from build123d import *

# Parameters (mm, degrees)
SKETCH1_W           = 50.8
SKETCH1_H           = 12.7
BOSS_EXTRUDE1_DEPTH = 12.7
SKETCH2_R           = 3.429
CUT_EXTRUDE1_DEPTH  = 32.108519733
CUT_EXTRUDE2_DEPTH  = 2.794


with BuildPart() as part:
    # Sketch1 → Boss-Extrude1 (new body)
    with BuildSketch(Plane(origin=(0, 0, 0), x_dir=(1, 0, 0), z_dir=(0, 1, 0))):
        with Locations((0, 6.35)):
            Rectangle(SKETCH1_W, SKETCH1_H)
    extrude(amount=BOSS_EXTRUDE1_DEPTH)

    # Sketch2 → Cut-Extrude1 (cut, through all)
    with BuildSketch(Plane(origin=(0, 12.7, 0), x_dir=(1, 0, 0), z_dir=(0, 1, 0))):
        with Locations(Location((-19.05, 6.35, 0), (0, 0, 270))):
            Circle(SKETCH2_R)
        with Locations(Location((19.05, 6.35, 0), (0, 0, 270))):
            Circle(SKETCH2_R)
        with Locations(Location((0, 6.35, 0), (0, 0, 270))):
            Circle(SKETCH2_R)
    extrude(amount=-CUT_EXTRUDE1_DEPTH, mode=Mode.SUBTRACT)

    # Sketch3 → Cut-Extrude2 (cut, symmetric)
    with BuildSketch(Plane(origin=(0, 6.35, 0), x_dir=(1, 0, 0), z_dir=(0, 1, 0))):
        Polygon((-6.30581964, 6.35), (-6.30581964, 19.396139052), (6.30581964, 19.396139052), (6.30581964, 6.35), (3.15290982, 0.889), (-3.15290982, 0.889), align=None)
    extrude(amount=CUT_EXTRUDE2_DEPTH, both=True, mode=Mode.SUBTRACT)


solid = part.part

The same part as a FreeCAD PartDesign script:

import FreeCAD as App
import Part
import Sketcher

V = App.Vector
Q = App.Units.Quantity

doc = App.newDocument("Part")
params = doc.addObject("Spreadsheet::Sheet", "Params")
for row, (alias, value) in enumerate([
    ("sketch1_width", "2 in"),
    ("sketch1_height", "0.5 in"),
    ("pad1_length", "0.5 in"),
    ("sketch2_diameter", "0.27 in"),
    ("pocket2_length", "0.22 in"),
], start=1):
    params.set(f"A{row}", alias)
    params.set(f"B{row}", "=" + value)
    params.setAlias(f"B{row}", alias)

body = doc.addObject("PartDesign::Body", "Body")

# Sketch on XZ plane
sketch1 = body.newObject("Sketcher::SketchObject", "Sketch")
sketch1.AttachmentSupport = (doc.getObject("XZ_Plane"), [""])
sketch1.MapMode = "FlatFace"
sketch1.addGeometry([
    Part.LineSegment(V(-25.4, -12.7, 0), V(-25.4, 0, 0)),
    Part.LineSegment(V(-25.4, 0, 0), V(25.4, 0, 0)),
    Part.LineSegment(V(25.4, 0, 0), V(25.4, -12.7, 0)),
    Part.LineSegment(V(25.4, -12.7, 0), V(-25.4, -12.7, 0)),
], False)
sketch1.addConstraint([
    Sketcher.Constraint("Coincident", 0, 2, 1, 1),
    Sketcher.Constraint("Coincident", 1, 2, 2, 1),
    Sketcher.Constraint("Coincident", 2, 2, 3, 1),
    Sketcher.Constraint("Coincident", 3, 2, 0, 1),
    Sketcher.Constraint("Vertical", 0),
    Sketcher.Constraint("Horizontal", 1),
    Sketcher.Constraint("Vertical", 2),
    Sketcher.Constraint("Horizontal", 3),
    Sketcher.Constraint("Symmetric", 0, 2, 1, 2, -1, 1),
    Sketcher.Constraint("DistanceX", 1, 1, 1, 2, Q("2 in")),
    Sketcher.Constraint("DistanceY", 0, 1, 0, 2, Q("0.5 in")),
])
sketch1.setExpression("Constraints[9]", "Params.sketch1_width")
sketch1.setExpression("Constraints[10]", "Params.sketch1_height")
pad1 = body.newObject("PartDesign::Pad", "Pad")
pad1.Profile = sketch1
pad1.setExpression("Length", "Params.pad1_length")
pad1.Reversed = True

# Sketch on XZ plane
sketch2 = body.newObject("Sketcher::SketchObject", "Sketch001")
sketch2.AttachmentSupport = (doc.getObject("XZ_Plane"), [""])
sketch2.MapMode = "FlatFace"
sketch2.AttachmentOffset = App.Placement(V(0, 0, -0.5 * 25.4), App.Rotation())
sketch2.addGeometry([
    Part.Circle(V(-19.05, -6.35, 0), V(0, 0, 1), 3.429),
    Part.Circle(V(19.05, -6.35, 0), V(0, 0, 1), 3.429),
    Part.Circle(V(0, -6.35, 0), V(0, 0, 1), 3.429),
], False)
sketch2.addConstraint([
    Sketcher.Constraint("Equal", 0, 1),
    Sketcher.Constraint("Equal", 1, 2),
    Sketcher.Constraint("Symmetric", 0, 3, 1, 3, -2),
    Sketcher.Constraint("PointOnObject", 2, 3, -2),
    Sketcher.Constraint("Horizontal", 1, 3, 2, 3),
    Sketcher.Constraint("Diameter", 0, Q("0.27 in")),
    Sketcher.Constraint("DistanceX", 0, 3, 1, 3, Q("1.5 in")),
    Sketcher.Constraint("DistanceY", 0, 3, -1, 1, Q("0.25 in")),
])
sketch2.setExpression("Constraints[5]", "Params.sketch2_diameter")
pocket1 = body.newObject("PartDesign::Pocket", "Pocket")
pocket1.Profile = sketch2
pocket1.Type = "ThroughAll"
pocket1.Reversed = True

# Sketch on XZ plane
sketch3 = body.newObject("Sketcher::SketchObject", "Sketch002")
sketch3.AttachmentSupport = (doc.getObject("XZ_Plane"), [""])
sketch3.MapMode = "FlatFace"
sketch3.AttachmentOffset = App.Placement(V(0, 0, -0.25 * 25.4), App.Rotation())
sketch3.addGeometry([
    Part.LineSegment(V(-6.30582, -19.396139, 0), V(-6.30582, -6.35, 0)),  # 0
    Part.LineSegment(V(-6.30582, -6.35, 0), V(-3.15291, -0.889, 0)),  # 1
    Part.LineSegment(V(-3.15291, -0.889, 0), V(3.15291, -0.889, 0)),  # 2
    Part.LineSegment(V(3.15291, -0.889, 0), V(6.30582, -6.35, 0)),  # 3
    Part.LineSegment(V(6.30582, -6.35, 0), V(6.30582, -19.396139, 0)),  # 4
    Part.LineSegment(V(6.30582, -19.396139, 0), V(-6.30582, -19.396139, 0)),  # 5
], False)
sketch3.addConstraint([
    Sketcher.Constraint("Coincident", 0, 2, 1, 1),
    Sketcher.Constraint("Coincident", 1, 2, 2, 1),
    Sketcher.Constraint("Coincident", 2, 2, 3, 1),
    Sketcher.Constraint("Coincident", 3, 2, 4, 1),
    Sketcher.Constraint("Coincident", 4, 2, 5, 1),
    Sketcher.Constraint("Coincident", 5, 2, 0, 1),
    Sketcher.Constraint("Vertical", 0),
    Sketcher.Constraint("Horizontal", 2),
    Sketcher.Constraint("Vertical", 4),
    Sketcher.Constraint("Horizontal", 5),
    Sketcher.Constraint("Symmetric", 0, 2, 3, 2, -2),
    Sketcher.Constraint("Equal", 1, 3),
    Sketcher.Constraint("Angle", 1, Q("60 deg")),
    Sketcher.Constraint("DistanceY", 0, 2, -1, 1, Q("0.25 in")),
    Sketcher.Constraint("DistanceY", 1, 2, -1, 1, Q("0.035 in")),
    Sketcher.Constraint("DistanceX", 2, 1, 2, 2, 6.30582),
    Sketcher.Constraint("DistanceY", 0, 1, 0, 2, 13.046139),
])
pocket2 = body.newObject("PartDesign::Pocket", "Pocket001")
pocket2.Profile = sketch3
pocket2.setExpression("Length", "Params.pocket2_length")
pocket2.Midplane = True

doc.recompute()
